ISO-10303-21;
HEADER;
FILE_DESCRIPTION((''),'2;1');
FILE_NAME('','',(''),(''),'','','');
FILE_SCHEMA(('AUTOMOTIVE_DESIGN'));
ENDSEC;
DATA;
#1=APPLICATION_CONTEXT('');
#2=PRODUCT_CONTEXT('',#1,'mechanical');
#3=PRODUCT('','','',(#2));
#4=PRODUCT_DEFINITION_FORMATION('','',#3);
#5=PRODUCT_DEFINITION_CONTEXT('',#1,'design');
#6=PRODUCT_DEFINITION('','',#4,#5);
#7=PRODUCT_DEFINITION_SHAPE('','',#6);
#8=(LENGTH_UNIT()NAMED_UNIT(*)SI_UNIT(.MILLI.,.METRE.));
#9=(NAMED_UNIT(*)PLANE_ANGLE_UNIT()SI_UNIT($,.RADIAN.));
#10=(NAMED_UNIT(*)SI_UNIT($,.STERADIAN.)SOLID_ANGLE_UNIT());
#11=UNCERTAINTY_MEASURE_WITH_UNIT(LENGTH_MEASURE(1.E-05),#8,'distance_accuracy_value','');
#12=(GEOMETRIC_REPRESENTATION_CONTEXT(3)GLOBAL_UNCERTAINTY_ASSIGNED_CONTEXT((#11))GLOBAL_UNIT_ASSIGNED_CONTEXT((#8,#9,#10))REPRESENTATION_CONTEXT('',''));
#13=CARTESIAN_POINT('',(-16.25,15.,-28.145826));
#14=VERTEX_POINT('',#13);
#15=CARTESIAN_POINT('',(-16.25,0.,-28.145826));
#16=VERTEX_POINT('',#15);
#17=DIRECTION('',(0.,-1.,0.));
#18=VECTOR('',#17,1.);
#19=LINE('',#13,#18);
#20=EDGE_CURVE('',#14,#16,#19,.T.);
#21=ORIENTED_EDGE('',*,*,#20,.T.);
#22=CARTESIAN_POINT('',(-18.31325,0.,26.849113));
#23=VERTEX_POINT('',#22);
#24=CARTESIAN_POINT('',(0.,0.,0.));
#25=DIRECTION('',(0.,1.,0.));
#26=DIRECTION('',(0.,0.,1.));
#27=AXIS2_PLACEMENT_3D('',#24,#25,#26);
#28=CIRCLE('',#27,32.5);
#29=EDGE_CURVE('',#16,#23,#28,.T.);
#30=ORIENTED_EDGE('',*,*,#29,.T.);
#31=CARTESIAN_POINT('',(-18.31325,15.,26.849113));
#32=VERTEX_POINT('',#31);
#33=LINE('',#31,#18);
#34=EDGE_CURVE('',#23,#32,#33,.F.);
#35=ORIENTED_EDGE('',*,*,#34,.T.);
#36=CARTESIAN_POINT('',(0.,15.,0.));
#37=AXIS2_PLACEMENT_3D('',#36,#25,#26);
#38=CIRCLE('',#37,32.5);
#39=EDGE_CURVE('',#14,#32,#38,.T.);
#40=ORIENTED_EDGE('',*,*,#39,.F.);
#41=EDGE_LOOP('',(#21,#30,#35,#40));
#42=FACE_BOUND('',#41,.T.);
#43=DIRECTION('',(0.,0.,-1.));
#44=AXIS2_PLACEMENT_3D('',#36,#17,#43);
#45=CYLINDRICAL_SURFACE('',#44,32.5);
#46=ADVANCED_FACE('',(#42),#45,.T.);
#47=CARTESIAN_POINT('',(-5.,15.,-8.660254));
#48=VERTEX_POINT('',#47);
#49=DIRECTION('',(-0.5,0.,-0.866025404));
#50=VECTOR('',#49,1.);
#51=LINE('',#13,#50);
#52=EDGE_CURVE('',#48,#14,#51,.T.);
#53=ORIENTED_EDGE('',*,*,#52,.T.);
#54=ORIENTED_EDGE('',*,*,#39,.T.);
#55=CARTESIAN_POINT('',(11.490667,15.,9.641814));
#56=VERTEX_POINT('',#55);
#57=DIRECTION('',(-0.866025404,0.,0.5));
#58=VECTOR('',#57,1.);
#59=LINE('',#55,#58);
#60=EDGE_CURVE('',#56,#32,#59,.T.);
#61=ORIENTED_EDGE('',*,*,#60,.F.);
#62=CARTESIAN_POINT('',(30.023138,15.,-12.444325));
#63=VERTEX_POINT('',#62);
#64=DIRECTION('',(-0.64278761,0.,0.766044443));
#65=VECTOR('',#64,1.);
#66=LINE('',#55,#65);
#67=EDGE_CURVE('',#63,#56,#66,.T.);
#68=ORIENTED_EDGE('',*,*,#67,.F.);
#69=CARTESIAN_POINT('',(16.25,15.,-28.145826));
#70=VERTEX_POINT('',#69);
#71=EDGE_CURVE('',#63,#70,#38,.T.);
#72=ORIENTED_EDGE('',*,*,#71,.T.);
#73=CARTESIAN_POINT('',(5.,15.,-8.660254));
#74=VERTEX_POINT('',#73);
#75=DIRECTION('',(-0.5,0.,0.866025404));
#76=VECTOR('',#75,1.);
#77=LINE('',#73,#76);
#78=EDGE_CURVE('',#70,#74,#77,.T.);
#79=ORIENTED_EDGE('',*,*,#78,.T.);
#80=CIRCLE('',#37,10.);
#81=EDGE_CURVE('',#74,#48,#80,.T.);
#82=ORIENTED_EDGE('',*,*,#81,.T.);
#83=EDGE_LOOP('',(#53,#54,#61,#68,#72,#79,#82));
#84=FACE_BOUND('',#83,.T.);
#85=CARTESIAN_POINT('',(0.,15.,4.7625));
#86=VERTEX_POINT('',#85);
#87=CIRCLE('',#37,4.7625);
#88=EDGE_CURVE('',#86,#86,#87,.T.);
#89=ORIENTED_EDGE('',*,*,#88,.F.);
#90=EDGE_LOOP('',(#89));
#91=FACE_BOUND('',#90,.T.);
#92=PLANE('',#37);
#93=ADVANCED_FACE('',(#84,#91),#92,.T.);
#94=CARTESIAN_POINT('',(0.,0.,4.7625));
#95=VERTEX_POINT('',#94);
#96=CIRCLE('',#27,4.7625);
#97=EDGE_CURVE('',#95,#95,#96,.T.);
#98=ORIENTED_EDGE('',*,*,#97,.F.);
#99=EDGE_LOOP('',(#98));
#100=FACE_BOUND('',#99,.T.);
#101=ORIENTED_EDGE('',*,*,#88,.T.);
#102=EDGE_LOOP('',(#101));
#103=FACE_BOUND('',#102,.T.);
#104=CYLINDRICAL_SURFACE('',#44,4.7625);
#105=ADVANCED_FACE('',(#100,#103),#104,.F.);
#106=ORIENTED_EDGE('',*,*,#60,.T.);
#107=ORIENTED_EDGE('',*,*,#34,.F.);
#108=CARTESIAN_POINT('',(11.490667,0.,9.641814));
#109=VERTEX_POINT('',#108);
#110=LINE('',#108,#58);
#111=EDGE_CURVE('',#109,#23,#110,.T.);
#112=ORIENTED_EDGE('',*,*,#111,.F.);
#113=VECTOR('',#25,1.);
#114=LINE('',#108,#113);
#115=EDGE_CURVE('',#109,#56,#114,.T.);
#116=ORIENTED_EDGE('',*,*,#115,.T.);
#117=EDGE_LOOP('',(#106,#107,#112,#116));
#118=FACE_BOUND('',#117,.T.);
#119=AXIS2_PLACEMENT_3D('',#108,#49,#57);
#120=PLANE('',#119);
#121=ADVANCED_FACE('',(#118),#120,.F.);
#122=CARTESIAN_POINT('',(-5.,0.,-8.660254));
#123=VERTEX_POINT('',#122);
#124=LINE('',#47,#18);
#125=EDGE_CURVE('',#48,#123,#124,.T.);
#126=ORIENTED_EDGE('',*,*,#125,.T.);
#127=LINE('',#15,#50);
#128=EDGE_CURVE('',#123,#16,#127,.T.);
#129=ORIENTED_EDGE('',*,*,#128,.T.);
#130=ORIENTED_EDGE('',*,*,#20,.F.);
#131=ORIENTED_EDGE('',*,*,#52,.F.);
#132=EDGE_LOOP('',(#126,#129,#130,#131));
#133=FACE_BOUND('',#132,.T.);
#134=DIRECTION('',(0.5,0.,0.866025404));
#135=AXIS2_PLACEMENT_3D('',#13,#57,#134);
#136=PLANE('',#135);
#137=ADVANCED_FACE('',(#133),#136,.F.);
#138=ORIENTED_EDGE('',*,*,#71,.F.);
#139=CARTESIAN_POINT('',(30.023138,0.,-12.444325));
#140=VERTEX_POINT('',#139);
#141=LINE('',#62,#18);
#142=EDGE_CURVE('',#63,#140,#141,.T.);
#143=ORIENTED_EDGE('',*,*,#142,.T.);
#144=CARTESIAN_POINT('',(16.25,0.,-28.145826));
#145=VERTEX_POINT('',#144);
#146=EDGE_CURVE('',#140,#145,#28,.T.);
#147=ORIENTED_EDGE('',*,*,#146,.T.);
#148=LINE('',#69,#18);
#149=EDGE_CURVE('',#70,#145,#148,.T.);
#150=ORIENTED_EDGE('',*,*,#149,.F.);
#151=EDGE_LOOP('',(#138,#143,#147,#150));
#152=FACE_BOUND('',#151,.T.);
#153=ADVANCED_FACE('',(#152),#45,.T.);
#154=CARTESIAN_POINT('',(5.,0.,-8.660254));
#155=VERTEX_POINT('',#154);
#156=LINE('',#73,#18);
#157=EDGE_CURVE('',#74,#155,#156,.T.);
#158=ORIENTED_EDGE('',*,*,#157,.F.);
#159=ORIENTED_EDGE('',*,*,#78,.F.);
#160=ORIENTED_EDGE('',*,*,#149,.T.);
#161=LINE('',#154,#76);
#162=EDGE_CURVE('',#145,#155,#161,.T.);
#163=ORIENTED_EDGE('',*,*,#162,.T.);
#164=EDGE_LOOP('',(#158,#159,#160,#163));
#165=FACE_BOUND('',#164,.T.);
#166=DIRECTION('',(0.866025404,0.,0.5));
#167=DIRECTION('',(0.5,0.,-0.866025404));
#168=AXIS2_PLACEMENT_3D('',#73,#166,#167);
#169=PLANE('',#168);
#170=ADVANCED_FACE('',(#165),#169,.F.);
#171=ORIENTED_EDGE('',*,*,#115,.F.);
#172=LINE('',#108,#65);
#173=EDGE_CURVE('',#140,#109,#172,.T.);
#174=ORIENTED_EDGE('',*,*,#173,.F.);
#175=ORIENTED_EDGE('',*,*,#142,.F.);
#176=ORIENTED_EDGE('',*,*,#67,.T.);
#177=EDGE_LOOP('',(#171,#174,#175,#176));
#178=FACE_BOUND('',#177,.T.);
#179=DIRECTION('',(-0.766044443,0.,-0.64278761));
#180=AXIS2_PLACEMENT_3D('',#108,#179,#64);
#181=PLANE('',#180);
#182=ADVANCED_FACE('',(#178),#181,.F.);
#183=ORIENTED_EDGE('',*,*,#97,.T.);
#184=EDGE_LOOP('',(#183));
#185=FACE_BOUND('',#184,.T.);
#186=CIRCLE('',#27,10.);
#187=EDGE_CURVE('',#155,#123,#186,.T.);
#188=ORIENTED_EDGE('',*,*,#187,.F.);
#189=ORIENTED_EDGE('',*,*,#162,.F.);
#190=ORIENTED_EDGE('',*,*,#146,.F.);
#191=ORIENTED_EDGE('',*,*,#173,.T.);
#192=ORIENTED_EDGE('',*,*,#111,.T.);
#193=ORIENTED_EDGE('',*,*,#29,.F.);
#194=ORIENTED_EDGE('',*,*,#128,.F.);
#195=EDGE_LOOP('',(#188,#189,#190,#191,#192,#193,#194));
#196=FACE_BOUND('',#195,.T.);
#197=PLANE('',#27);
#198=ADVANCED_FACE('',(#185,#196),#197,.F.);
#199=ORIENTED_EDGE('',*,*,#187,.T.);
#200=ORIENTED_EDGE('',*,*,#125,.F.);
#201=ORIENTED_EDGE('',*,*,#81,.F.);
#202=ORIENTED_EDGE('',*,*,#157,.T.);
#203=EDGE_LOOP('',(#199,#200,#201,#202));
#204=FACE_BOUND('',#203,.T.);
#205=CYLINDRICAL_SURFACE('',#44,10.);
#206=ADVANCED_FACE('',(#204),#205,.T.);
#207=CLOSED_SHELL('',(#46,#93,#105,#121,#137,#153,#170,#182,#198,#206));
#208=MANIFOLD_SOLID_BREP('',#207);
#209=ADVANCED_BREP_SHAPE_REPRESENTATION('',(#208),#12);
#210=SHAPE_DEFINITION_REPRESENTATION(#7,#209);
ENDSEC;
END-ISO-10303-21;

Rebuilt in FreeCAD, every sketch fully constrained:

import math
import FreeCAD as App
import Part
import Sketcher

V = App.Vector
Q = App.Units.Quantity

doc = App.newDocument("Part")
params = doc.addObject("Spreadsheet::Sheet", "Params")
for row, (alias, value) in enumerate([
    ("sketch1_radius", "10 mm"),
    ("sketch1_radius2", "32.5 mm"),
    ("pad1_length", "15 mm"),
    ("sketch2_radius", "55 mm"),
], start=1):
    params.set(f"A{row}", alias)
    params.set(f"B{row}", "=" + value)
    params.setAlias(f"B{row}", alias)

body = doc.addObject("PartDesign::Body", "Body")

sketch1 = body.newObject("Sketcher::SketchObject", "Sketch")
sketch1.AttachmentSupport = (doc.getObject("XZ_Plane"), [""])
sketch1.MapMode = "FlatFace"
sketch1.addGeometry([
    Part.LineSegment(V(-5, -8.7, 0), V(-16.2, -28.1, 0)),
    Part.ArcOfCircle(Part.Circle(V(0, 0, 0), V(0, 0, 1), 32.5), math.radians(-60), math.radians(240)),
    Part.LineSegment(V(16.2, -28.1, 0), V(5, -8.7, 0)),
    Part.ArcOfCircle(Part.Circle(V(0, 0, 0), V(0, 0, 1), 10), math.radians(-120), math.radians(-60)),
    Part.Circle(V(0, 0, 0), V(0, 0, 1), 4.8),
], False)
sketch1.addConstraint([
    Sketcher.Constraint("Coincident", 0, 2, 1, 2),
    Sketcher.Constraint("Coincident", 1, 1, 2, 1),
    Sketcher.Constraint("Coincident", 2, 2, 3, 2),
    Sketcher.Constraint("Coincident", 3, 1, 0, 1),
    Sketcher.Constraint("Coincident", 1, 3, -1, 1),
    Sketcher.Constraint("Coincident", 3, 3, -1, 1),
    Sketcher.Constraint("Coincident", 4, 3, -1, 1),
    Sketcher.Constraint("Horizontal", 0, 2, 1, 1),
    Sketcher.Constraint("Horizontal", 2, 2, 3, 1),
    Sketcher.Constraint("Radius", 3, 10.0),
    Sketcher.Constraint("Radius", 1, 32.5),
    Sketcher.Constraint("Angle", 0, Q("-120 deg")),
    Sketcher.Constraint("Diameter", 4, 9.525),
    Sketcher.Constraint("DistanceX", -1, 1, 2, 2, 5.0),
])
sketch1.setExpression("Constraints[9]", "Params.sketch1_radius")
sketch1.setExpression("Constraints[10]", "Params.sketch1_radius2")
pad1 = body.newObject("PartDesign::Pad", "Pad")
pad1.Profile = sketch1
pad1.setExpression("Length", "Params.pad1_length")
pad1.Reversed = True

sketch2 = body.newObject("Sketcher::SketchObject", "Sketch001")
sketch2.AttachmentSupport = (doc.getObject("XZ_Plane"), [""])
sketch2.MapMode = "FlatFace"
sketch2.AttachmentOffset = App.Placement(V(0, 0, -15), App.Rotation())
sketch2.addGeometry([
    Part.LineSegment(V(46, -31, 0), V(11, 10, 0)),
    Part.LineSegment(V(11, 10, 0), V(-39, 39, 0)),
    Part.ArcOfCircle(Part.Circle(V(0, 0, 0), V(0, 0, 1), 55), math.radians(-34), math.radians(135)),
], False)
sketch2.addConstraint([
    Sketcher.Constraint("Coincident", 0, 2, 1, 1),
    Sketcher.Constraint("Coincident", 1, 2, 2, 2),
    Sketcher.Constraint("Coincident", 2, 1, 0, 1),
    Sketcher.Constraint("Coincident", 2, 3, -1, 1),
    Sketcher.Constraint("Radius", 2, 55.0),
    Sketcher.Constraint("Angle", 0, Q("130 deg")),
    Sketcher.Constraint("Angle", 1, Q("150 deg")),
    Sketcher.Constraint("DistanceX", 1, 2, -1, 1, 38.99294),
    Sketcher.Constraint("DistanceX", -1, 1, 2, 1, 45.50379),
])
sketch2.setExpression("Constraints[4]", "Params.sketch2_radius")
pocket1 = body.newObject("PartDesign::Pocket", "Pocket")
pocket1.Profile = sketch2
pocket1.Type = "ThroughAll"
pocket1.Reversed = True

doc.recompute()
